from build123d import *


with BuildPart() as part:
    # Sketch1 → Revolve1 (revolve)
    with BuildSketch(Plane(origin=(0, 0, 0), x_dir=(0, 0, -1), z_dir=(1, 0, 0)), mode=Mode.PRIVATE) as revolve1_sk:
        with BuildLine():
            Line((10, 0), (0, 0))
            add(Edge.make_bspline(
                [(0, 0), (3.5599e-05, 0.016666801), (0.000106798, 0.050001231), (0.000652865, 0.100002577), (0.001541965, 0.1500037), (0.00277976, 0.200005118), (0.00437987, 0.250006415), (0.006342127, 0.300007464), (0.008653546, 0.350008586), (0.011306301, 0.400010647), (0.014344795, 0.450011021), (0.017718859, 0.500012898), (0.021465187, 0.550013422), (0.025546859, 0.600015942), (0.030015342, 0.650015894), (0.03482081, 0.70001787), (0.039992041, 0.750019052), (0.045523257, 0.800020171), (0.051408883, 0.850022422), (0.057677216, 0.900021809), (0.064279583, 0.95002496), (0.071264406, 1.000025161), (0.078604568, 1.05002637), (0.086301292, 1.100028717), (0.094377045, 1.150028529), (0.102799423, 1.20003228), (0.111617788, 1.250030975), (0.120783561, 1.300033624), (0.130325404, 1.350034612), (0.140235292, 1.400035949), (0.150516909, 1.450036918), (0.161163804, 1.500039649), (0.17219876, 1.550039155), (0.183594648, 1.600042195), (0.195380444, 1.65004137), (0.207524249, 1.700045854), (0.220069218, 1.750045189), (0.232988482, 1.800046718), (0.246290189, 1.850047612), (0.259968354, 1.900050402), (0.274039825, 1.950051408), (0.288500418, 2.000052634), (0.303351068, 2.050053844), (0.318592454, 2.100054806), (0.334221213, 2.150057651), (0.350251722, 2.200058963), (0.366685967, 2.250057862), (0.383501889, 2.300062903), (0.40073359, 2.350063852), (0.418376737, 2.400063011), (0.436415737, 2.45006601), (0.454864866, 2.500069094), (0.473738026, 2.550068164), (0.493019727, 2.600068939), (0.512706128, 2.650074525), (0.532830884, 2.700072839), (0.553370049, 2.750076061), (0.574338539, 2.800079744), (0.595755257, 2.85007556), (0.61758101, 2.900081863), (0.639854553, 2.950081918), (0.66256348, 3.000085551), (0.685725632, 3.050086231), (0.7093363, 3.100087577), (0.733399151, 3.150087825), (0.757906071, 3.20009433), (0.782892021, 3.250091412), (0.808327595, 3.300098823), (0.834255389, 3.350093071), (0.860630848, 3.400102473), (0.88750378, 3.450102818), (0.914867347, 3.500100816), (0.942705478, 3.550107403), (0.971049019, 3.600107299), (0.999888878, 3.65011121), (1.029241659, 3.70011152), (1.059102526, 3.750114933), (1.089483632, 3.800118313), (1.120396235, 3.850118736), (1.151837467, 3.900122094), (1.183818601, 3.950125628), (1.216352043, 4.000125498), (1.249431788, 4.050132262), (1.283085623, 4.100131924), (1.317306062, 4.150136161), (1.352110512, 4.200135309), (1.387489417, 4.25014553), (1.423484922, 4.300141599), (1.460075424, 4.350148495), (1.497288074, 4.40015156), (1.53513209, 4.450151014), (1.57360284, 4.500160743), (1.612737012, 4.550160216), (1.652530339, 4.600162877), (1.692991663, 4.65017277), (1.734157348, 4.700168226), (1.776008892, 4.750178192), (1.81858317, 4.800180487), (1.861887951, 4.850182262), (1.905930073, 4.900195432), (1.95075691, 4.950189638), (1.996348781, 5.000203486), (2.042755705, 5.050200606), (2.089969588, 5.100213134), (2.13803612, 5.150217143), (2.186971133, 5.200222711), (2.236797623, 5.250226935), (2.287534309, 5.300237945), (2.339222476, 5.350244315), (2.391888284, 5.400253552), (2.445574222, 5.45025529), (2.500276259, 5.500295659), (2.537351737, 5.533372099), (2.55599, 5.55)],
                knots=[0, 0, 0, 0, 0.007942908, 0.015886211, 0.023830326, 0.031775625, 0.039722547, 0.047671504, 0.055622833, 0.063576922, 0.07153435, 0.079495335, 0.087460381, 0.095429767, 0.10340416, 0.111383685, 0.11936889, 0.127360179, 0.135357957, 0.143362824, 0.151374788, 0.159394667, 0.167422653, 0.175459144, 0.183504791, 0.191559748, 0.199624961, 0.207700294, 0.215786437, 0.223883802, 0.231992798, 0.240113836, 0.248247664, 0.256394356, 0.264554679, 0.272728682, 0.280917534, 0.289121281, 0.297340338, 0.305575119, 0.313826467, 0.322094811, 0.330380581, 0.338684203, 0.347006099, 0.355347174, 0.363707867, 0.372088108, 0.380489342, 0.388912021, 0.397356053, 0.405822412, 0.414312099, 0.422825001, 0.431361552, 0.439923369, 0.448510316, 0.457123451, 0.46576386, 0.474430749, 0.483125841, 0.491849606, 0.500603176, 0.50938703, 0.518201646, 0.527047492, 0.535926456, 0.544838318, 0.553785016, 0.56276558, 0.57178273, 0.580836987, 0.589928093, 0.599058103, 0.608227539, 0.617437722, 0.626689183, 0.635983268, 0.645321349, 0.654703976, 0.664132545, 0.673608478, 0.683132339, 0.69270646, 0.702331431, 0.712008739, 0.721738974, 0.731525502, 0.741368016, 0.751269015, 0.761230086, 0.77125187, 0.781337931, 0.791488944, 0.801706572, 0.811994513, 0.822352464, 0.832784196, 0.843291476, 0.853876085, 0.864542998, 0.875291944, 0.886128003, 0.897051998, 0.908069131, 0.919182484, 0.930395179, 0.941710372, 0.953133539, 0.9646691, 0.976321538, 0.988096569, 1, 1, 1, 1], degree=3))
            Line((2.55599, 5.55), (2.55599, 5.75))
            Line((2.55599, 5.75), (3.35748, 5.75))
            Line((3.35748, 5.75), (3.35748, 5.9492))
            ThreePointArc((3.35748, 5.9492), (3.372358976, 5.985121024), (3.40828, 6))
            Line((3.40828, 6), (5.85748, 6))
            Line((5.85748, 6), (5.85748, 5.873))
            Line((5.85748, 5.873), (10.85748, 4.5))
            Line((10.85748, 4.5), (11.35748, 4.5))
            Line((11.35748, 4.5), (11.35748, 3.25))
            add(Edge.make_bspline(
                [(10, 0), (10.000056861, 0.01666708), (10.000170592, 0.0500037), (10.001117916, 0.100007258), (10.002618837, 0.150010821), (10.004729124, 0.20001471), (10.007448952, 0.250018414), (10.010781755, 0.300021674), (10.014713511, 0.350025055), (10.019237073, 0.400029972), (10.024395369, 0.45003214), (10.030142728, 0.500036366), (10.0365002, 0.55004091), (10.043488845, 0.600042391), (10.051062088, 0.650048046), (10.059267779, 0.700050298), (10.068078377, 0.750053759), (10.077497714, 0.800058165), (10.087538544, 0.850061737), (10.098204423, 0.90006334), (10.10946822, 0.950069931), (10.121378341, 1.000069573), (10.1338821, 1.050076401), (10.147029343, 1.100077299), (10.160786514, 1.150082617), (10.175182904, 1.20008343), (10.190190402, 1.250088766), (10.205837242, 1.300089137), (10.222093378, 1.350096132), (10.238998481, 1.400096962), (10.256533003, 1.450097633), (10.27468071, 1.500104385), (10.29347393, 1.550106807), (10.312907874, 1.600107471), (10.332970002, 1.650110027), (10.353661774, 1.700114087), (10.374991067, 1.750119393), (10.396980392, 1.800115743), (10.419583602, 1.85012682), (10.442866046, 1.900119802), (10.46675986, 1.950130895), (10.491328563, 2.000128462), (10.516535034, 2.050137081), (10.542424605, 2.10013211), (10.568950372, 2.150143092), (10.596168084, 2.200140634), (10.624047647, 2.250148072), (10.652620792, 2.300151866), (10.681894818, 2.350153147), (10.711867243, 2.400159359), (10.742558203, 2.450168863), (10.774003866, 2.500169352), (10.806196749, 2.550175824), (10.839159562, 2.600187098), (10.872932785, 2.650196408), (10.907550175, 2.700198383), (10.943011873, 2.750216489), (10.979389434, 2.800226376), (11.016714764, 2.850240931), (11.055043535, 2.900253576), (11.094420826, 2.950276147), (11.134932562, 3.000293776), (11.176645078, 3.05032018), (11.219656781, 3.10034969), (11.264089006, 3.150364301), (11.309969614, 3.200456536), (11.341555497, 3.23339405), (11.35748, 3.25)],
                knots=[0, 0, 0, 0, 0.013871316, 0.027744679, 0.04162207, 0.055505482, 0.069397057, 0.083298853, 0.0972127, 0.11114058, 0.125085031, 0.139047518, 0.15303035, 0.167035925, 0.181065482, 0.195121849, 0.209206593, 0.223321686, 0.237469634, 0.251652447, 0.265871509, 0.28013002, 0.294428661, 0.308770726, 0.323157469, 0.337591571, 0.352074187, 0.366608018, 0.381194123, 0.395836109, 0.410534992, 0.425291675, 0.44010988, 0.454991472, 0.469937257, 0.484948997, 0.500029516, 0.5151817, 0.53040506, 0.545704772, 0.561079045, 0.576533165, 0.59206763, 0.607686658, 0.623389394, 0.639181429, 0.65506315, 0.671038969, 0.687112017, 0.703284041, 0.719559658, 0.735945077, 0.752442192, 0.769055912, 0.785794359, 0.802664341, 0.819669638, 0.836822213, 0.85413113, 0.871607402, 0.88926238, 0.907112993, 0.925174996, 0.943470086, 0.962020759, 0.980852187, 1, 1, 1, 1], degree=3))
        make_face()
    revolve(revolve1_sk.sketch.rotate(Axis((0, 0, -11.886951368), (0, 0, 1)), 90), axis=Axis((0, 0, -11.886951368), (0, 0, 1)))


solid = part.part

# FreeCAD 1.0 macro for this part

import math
import FreeCAD as App
import Part
import Sketcher

doc = App.newDocument("Part")
body = doc.addObject("PartDesign::Body", "Body")

sketch1 = doc.addObject("Sketcher::SketchObject", "Sketch")
body.addObject(sketch1)
sketch1.AttachmentSupport = (doc.YZ_Plane, [""])
sketch1.MapMode = "FlatFace"
sketch1.addGeometry(Part.LineSegment(App.Vector(0, 0, 0), App.Vector(0, -10, 0)), False)
sketch1.addGeometry(Part.BSplineCurve([App.Vector(0, -10, 0), App.Vector(0.016667, -10.000057, 0), App.Vector(0.050004, -10.000171, 0), App.Vector(0.100007, -10.001118, 0), App.Vector(0.150011, -10.002619, 0), App.Vector(0.200015, -10.004729, 0), App.Vector(0.250018, -10.007449, 0), App.Vector(0.300022, -10.010782, 0), App.Vector(0.350025, -10.014714, 0), App.Vector(0.40003, -10.019237, 0), App.Vector(0.450032, -10.024395, 0), App.Vector(0.500036, -10.030143, 0), App.Vector(0.550041, -10.0365, 0), App.Vector(0.600042, -10.043489, 0), App.Vector(0.650048, -10.051062, 0), App.Vector(0.70005, -10.059268, 0), App.Vector(0.750054, -10.068078, 0), App.Vector(0.800058, -10.077498, 0), App.Vector(0.850062, -10.087539, 0), App.Vector(0.900063, -10.098204, 0), App.Vector(0.95007, -10.109468, 0), App.Vector(1.00007, -10.121378, 0), App.Vector(1.050076, -10.133882, 0), App.Vector(1.100077, -10.147029, 0), App.Vector(1.150083, -10.160787, 0), App.Vector(1.200083, -10.175183, 0), App.Vector(1.250089, -10.19019, 0), App.Vector(1.300089, -10.205837, 0), App.Vector(1.350096, -10.222093, 0), App.Vector(1.400097, -10.238998, 0), App.Vector(1.450098, -10.256533, 0), App.Vector(1.500104, -10.274681, 0), App.Vector(1.550107, -10.293474, 0), App.Vector(1.600107, -10.312908, 0), App.Vector(1.65011, -10.33297, 0), App.Vector(1.700114, -10.353662, 0), App.Vector(1.750119, -10.374991, 0), App.Vector(1.800116, -10.39698, 0), App.Vector(1.850127, -10.419584, 0), App.Vector(1.90012, -10.442866, 0), App.Vector(1.950131, -10.46676, 0), App.Vector(2.000128, -10.491329, 0), App.Vector(2.050137, -10.516535, 0), App.Vector(2.100132, -10.542425, 0), App.Vector(2.150143, -10.56895, 0), App.Vector(2.200141, -10.596168, 0), App.Vector(2.250148, -10.624048, 0), App.Vector(2.300152, -10.652621, 0), App.Vector(2.350153, -10.681895, 0), App.Vector(2.400159, -10.711867, 0), App.Vector(2.450169, -10.742558, 0), App.Vector(2.500169, -10.774004, 0), App.Vector(2.550176, -10.806197, 0), App.Vector(2.600187, -10.83916, 0), App.Vector(2.650196, -10.872933, 0), App.Vector(2.700198, -10.90755, 0), App.Vector(2.750216, -10.943012, 0), App.Vector(2.800226, -10.979389, 0), App.Vector(2.850241, -11.016715, 0), App.Vector(2.900254, -11.055044, 0), App.Vector(2.950276, -11.094421, 0), App.Vector(3.000294, -11.134933, 0), App.Vector(3.05032, -11.176645, 0), App.Vector(3.10035, -11.219657, 0), App.Vector(3.150364, -11.264089, 0), App.Vector(3.200457, -11.30997, 0), App.Vector(3.233394, -11.341555, 0), App.Vector(3.25, -11.35748, 0)], [4, 1, 1, 1, 1, 1, 1, 1, 1, 1, 1, 1, 1, 1, 1, 1, 1, 1, 1, 1, 1, 1, 1, 1, 1, 1, 1, 1, 1, 1, 1, 1, 1, 1, 1, 1, 1, 1, 1, 1, 1, 1, 1, 1, 1, 1, 1, 1, 1, 1, 1, 1, 1, 1, 1, 1, 1, 1, 1, 1, 1, 1, 1, 1, 1, 4], [0, 0.013871316, 0.027744679, 0.04162207, 0.055505482, 0.069397057, 0.083298853, 0.0972127, 0.11114058, 0.125085031, 0.139047518, 0.15303035, 0.167035925, 0.181065482, 0.195121849, 0.209206593, 0.223321686, 0.237469634, 0.251652447, 0.265871509, 0.28013002, 0.294428661, 0.308770726, 0.323157469, 0.337591571, 0.352074187, 0.366608018, 0.381194123, 0.395836109, 0.410534992, 0.425291675, 0.44010988, 0.454991472, 0.469937257, 0.484948997, 0.500029516, 0.5151817, 0.53040506, 0.545704772, 0.561079045, 0.576533165, 0.59206763, 0.607686658, 0.623389394, 0.639181429, 0.65506315, 0.671038969, 0.687112017, 0.703284041, 0.719559658, 0.735945077, 0.752442192, 0.769055912, 0.785794359, 0.802664341, 0.819669638, 0.836822213, 0.85413113, 0.871607402, 0.88926238, 0.907112993, 0.925174996, 0.943470086, 0.962020759, 0.980852187, 1], False, 3, [1, 1, 1, 1, 1, 1, 1, 1, 1, 1, 1, 1, 1, 1, 1, 1, 1, 1, 1, 1, 1, 1, 1, 1, 1, 1, 1, 1, 1, 1, 1, 1, 1, 1, 1, 1, 1, 1, 1, 1, 1, 1, 1, 1, 1, 1, 1, 1, 1, 1, 1, 1, 1, 1, 1, 1, 1, 1, 1, 1, 1, 1, 1, 1, 1, 1, 1, 1], False), False)
sketch1.addGeometry(Part.LineSegment(App.Vector(3.25, -11.35748, 0), App.Vector(4.5, -11.35748, 0)), False)
sketch1.addGeometry(Part.LineSegment(App.Vector(4.5, -11.35748, 0), App.Vector(4.5, -10.85748, 0)), False)
sketch1.addGeometry(Part.LineSegment(App.Vector(4.5, -10.85748, 0), App.Vector(5.873, -5.85748, 0)), False)
sketch1.addGeometry(Part.LineSegment(App.Vector(5.873, -5.85748, 0), App.Vector(6, -5.85748, 0)), False)
sketch1.addGeometry(Part.LineSegment(App.Vector(6, -5.85748, 0), App.Vector(6, -3.40828, 0)), False)
sketch1.addGeometry(Part.ArcOfCircle(Part.Circle(App.Vector(5.9492, -3.40828, 0), App.Vector(0, 0, 1), 0.0508), math.radians(0.000002), math.radians(89.999998)), False)
sketch1.addGeometry(Part.LineSegment(App.Vector(5.9492, -3.35748, 0), App.Vector(5.75, -3.35748, 0)), False)
sketch1.addGeometry(Part.LineSegment(App.Vector(5.75, -3.35748, 0), App.Vector(5.75, -2.55599, 0)), False)
sketch1.addGeometry(Part.LineSegment(App.Vector(5.75, -2.55599, 0), App.Vector(5.55, -2.55599, 0)), False)
sketch1.addGeometry(Part.BSplineCurve([App.Vector(0, 0, 0), App.Vector(0.016667, -0.000036, 0), App.Vector(0.050001, -0.000107, 0), App.Vector(0.100003, -0.000653, 0), App.Vector(0.150004, -0.001542, 0), App.Vector(0.200005, -0.00278, 0), App.Vector(0.250006, -0.00438, 0), App.Vector(0.300007, -0.006342, 0), App.Vector(0.350009, -0.008654, 0), App.Vector(0.400011, -0.011306, 0), App.Vector(0.450011, -0.014345, 0), App.Vector(0.500013, -0.017719, 0), App.Vector(0.550013, -0.021465, 0), App.Vector(0.600016, -0.025547, 0), App.Vector(0.650016, -0.030015, 0), App.Vector(0.700018, -0.034821, 0), App.Vector(0.750019, -0.039992, 0), App.Vector(0.80002, -0.045523, 0), App.Vector(0.850022, -0.051409, 0), App.Vector(0.900022, -0.057677, 0), App.Vector(0.950025, -0.06428, 0), App.Vector(1.000025, -0.071264, 0), App.Vector(1.050026, -0.078605, 0), App.Vector(1.100029, -0.086301, 0), App.Vector(1.150029, -0.094377, 0), App.Vector(1.200032, -0.102799, 0), App.Vector(1.250031, -0.111618, 0), App.Vector(1.300034, -0.120784, 0), App.Vector(1.350035, -0.130325, 0), App.Vector(1.400036, -0.140235, 0), App.Vector(1.450037, -0.150517, 0), App.Vector(1.50004, -0.161164, 0), App.Vector(1.550039, -0.172199, 0), App.Vector(1.600042, -0.183595, 0), App.Vector(1.650041, -0.19538, 0), App.Vector(1.700046, -0.207524, 0), App.Vector(1.750045, -0.220069, 0), App.Vector(1.800047, -0.232988, 0), App.Vector(1.850048, -0.24629, 0), App.Vector(1.90005, -0.259968, 0), App.Vector(1.950051, -0.27404, 0), App.Vector(2.000053, -0.2885, 0), App.Vector(2.050054, -0.303351, 0), App.Vector(2.100055, -0.318592, 0), App.Vector(2.150058, -0.334221, 0), App.Vector(2.200059, -0.350252, 0), App.Vector(2.250058, -0.366686, 0), App.Vector(2.300063, -0.383502, 0), App.Vector(2.350064, -0.400734, 0), App.Vector(2.400063, -0.418377, 0), App.Vector(2.450066, -0.436416, 0), App.Vector(2.500069, -0.454865, 0), App.Vector(2.550068, -0.473738, 0), App.Vector(2.600069, -0.49302, 0), App.Vector(2.650075, -0.512706, 0), App.Vector(2.700073, -0.532831, 0), App.Vector(2.750076, -0.55337, 0), App.Vector(2.80008, -0.574339, 0), App.Vector(2.850076, -0.595755, 0), App.Vector(2.900082, -0.617581, 0), App.Vector(2.950082, -0.639855, 0), App.Vector(3.000086, -0.662563, 0), App.Vector(3.050086, -0.685726, 0), App.Vector(3.100088, -0.709336, 0), App.Vector(3.150088, -0.733399, 0), App.Vector(3.200094, -0.757906, 0), App.Vector(3.250091, -0.782892, 0), App.Vector(3.300099, -0.808328, 0), App.Vector(3.350093, -0.834255, 0), App.Vector(3.400102, -0.860631, 0), App.Vector(3.450103, -0.887504, 0), App.Vector(3.500101, -0.914867, 0), App.Vector(3.550107, -0.942705, 0), App.Vector(3.600107, -0.971049, 0), App.Vector(3.650111, -0.999889, 0), App.Vector(3.700112, -1.029242, 0), App.Vector(3.750115, -1.059103, 0), App.Vector(3.800118, -1.089484, 0), App.Vector(3.850119, -1.120396, 0), App.Vector(3.900122, -1.151837, 0), App.Vector(3.950126, -1.183819, 0), App.Vector(4.000125, -1.216352, 0), App.Vector(4.050132, -1.249432, 0), App.Vector(4.100132, -1.283086, 0), App.Vector(4.150136, -1.317306, 0), App.Vector(4.200135, -1.352111, 0), App.Vector(4.250146, -1.387489, 0), App.Vector(4.300142, -1.423485, 0), App.Vector(4.350148, -1.460075, 0), App.Vector(4.400152, -1.497288, 0), App.Vector(4.450151, -1.535132, 0), App.Vector(4.500161, -1.573603, 0), App.Vector(4.55016, -1.612737, 0), App.Vector(4.600163, -1.65253, 0), App.Vector(4.650173, -1.692992, 0), App.Vector(4.700168, -1.734157, 0), App.Vector(4.750178, -1.776009, 0), App.Vector(4.80018, -1.818583, 0), App.Vector(4.850182, -1.861888, 0), App.Vector(4.900195, -1.90593, 0), App.Vector(4.95019, -1.950757, 0), App.Vector(5.000203, -1.996349, 0), App.Vector(5.050201, -2.042756, 0), App.Vector(5.100213, -2.08997, 0), App.Vector(5.150217, -2.138036, 0), App.Vector(5.200223, -2.186971, 0), App.Vector(5.250227, -2.236798, 0), App.Vector(5.300238, -2.287534, 0), App.Vector(5.350244, -2.339222, 0), App.Vector(5.400254, -2.391888, 0), App.Vector(5.450255, -2.445574, 0), App.Vector(5.500296, -2.500276, 0), App.Vector(5.533372, -2.537352, 0), App.Vector(5.55, -2.55599, 0)], [4, 1, 1, 1, 1, 1, 1, 1, 1, 1, 1, 1, 1, 1, 1, 1, 1, 1, 1, 1, 1, 1, 1, 1, 1, 1, 1, 1, 1, 1, 1, 1, 1, 1, 1, 1, 1, 1, 1, 1, 1, 1, 1, 1, 1, 1, 1, 1, 1, 1, 1, 1, 1, 1, 1, 1, 1, 1, 1, 1, 1, 1, 1, 1, 1, 1, 1, 1, 1, 1, 1, 1, 1, 1, 1, 1, 1, 1, 1, 1, 1, 1, 1, 1, 1, 1, 1, 1, 1, 1, 1, 1, 1, 1, 1, 1, 1, 1, 1, 1, 1, 1, 1, 1, 1, 1, 1, 1, 1, 1, 1, 4], [0, 0.007942908, 0.015886211, 0.023830326, 0.031775625, 0.039722547, 0.047671504, 0.055622833, 0.063576922, 0.07153435, 0.079495335, 0.087460381, 0.095429767, 0.10340416, 0.111383685, 0.11936889, 0.127360179, 0.135357957, 0.143362824, 0.151374788, 0.159394667, 0.167422653, 0.175459144, 0.183504791, 0.191559748, 0.199624961, 0.207700294, 0.215786437, 0.223883802, 0.231992798, 0.240113836, 0.248247664, 0.256394356, 0.264554679, 0.272728682, 0.280917534, 0.289121281, 0.297340338, 0.305575119, 0.313826467, 0.322094811, 0.330380581, 0.338684203, 0.347006099, 0.355347174, 0.363707867, 0.372088108, 0.380489342, 0.388912021, 0.397356053, 0.405822412, 0.414312099, 0.422825001, 0.431361552, 0.439923369, 0.448510316, 0.457123451, 0.46576386, 0.474430749, 0.483125841, 0.491849606, 0.500603176, 0.50938703, 0.518201646, 0.527047492, 0.535926456, 0.544838318, 0.553785016, 0.56276558, 0.57178273, 0.580836987, 0.589928093, 0.599058103, 0.608227539, 0.617437722, 0.626689183, 0.635983268, 0.645321349, 0.654703976, 0.664132545, 0.673608478, 0.683132339, 0.69270646, 0.702331431, 0.712008739, 0.721738974, 0.731525502, 0.741368016, 0.751269015, 0.761230086, 0.77125187, 0.781337931, 0.791488944, 0.801706572, 0.811994513, 0.822352464, 0.832784196, 0.843291476, 0.853876085, 0.864542998, 0.875291944, 0.886128003, 0.897051998, 0.908069131, 0.919182484, 0.930395179, 0.941710372, 0.953133539, 0.9646691, 0.976321538, 0.988096569, 1], False, 3, [1, 1, 1, 1, 1, 1, 1, 1, 1, 1, 1, 1, 1, 1, 1, 1, 1, 1, 1, 1, 1, 1, 1, 1, 1, 1, 1, 1, 1, 1, 1, 1, 1, 1, 1, 1, 1, 1, 1, 1, 1, 1, 1, 1, 1, 1, 1, 1, 1, 1, 1, 1, 1, 1, 1, 1, 1, 1, 1, 1, 1, 1, 1, 1, 1, 1, 1, 1, 1, 1, 1, 1, 1, 1, 1, 1, 1, 1, 1, 1, 1, 1, 1, 1, 1, 1, 1, 1, 1, 1, 1, 1, 1, 1, 1, 1, 1, 1, 1, 1, 1, 1, 1, 1, 1, 1, 1, 1, 1, 1, 1, 1, 1, 1], False), False)
sketch1.addConstraint(Sketcher.Constraint("Block", 1))
sketch1.addConstraint(Sketcher.Constraint("Block", 11))
sketch1.addConstraint(Sketcher.Constraint("Coincident", 0, 2, 1, 1))
sketch1.addConstraint(Sketcher.Constraint("Coincident", 1, 2, 2, 1))
sketch1.addConstraint(Sketcher.Constraint("Coincident", 2, 2, 3, 1))
sketch1.addConstraint(Sketcher.Constraint("Coincident", 3, 2, 4, 1))
sketch1.addConstraint(Sketcher.Constraint("Coincident", 4, 2, 5, 1))
sketch1.addConstraint(Sketcher.Constraint("Coincident", 5, 2, 6, 1))
sketch1.addConstraint(Sketcher.Constraint("Tangent", 6, 2, 7, 1))
sketch1.addConstraint(Sketcher.Constraint("Tangent", 7, 2, 8, 1))
sketch1.addConstraint(Sketcher.Constraint("Coincident", 8, 2, 9, 1))
sketch1.addConstraint(Sketcher.Constraint("Coincident", 9, 2, 10, 1))
sketch1.addConstraint(Sketcher.Constraint("Coincident", 10, 2, 11, 2))
sketch1.addConstraint(Sketcher.Constraint("Coincident", 11, 1, 0, 1))
sketch1.addConstraint(Sketcher.Constraint("Horizontal", 2))
sketch1.addConstraint(Sketcher.Constraint("Vertical", 3))
sketch1.addConstraint(Sketcher.Constraint("Horizontal", 5))
sketch1.addConstraint(Sketcher.Constraint("Vertical", 6))
sketch1.addConstraint(Sketcher.Constraint("Horizontal", 8))
sketch1.addConstraint(Sketcher.Constraint("Vertical", 9))
sketch1.addConstraint(Sketcher.Constraint("Horizontal", 10))
sketch1.addConstraint(Sketcher.Constraint("DistanceX", 10, 2, 10, 1, 0.2))
sketch1.addConstraint(Sketcher.Constraint("DistanceY", 3, 1, 3, 2, 0.5))
sketch1.addConstraint(Sketcher.Constraint("DistanceX", -1, 1, 5, 2, 6.0))
sketch1.addConstraint(Sketcher.Constraint("DistanceY", 3, 2, 4, 2, 5.0))
sketch1.addConstraint(Sketcher.Constraint("DistanceX", 2, 1, 2, 2, 1.25))
sketch1.addConstraint(Sketcher.Constraint("Radius", 7, 0.0508))
sketch1.addConstraint(Sketcher.Constraint("DistanceY", 5, 2, 7, 2, 2.5))
sketch1.addConstraint(Sketcher.Constraint("DistanceX", 5, 1, 5, 2, 0.127))
revolution = doc.addObject("PartDesign::Revolution", "Revolution")
body.addObject(revolution)
revolution.Profile = sketch1
revolution.ReferenceAxis = (sketch1, ["V_Axis"])
revolution.Angle = 360

doc.recompute()
